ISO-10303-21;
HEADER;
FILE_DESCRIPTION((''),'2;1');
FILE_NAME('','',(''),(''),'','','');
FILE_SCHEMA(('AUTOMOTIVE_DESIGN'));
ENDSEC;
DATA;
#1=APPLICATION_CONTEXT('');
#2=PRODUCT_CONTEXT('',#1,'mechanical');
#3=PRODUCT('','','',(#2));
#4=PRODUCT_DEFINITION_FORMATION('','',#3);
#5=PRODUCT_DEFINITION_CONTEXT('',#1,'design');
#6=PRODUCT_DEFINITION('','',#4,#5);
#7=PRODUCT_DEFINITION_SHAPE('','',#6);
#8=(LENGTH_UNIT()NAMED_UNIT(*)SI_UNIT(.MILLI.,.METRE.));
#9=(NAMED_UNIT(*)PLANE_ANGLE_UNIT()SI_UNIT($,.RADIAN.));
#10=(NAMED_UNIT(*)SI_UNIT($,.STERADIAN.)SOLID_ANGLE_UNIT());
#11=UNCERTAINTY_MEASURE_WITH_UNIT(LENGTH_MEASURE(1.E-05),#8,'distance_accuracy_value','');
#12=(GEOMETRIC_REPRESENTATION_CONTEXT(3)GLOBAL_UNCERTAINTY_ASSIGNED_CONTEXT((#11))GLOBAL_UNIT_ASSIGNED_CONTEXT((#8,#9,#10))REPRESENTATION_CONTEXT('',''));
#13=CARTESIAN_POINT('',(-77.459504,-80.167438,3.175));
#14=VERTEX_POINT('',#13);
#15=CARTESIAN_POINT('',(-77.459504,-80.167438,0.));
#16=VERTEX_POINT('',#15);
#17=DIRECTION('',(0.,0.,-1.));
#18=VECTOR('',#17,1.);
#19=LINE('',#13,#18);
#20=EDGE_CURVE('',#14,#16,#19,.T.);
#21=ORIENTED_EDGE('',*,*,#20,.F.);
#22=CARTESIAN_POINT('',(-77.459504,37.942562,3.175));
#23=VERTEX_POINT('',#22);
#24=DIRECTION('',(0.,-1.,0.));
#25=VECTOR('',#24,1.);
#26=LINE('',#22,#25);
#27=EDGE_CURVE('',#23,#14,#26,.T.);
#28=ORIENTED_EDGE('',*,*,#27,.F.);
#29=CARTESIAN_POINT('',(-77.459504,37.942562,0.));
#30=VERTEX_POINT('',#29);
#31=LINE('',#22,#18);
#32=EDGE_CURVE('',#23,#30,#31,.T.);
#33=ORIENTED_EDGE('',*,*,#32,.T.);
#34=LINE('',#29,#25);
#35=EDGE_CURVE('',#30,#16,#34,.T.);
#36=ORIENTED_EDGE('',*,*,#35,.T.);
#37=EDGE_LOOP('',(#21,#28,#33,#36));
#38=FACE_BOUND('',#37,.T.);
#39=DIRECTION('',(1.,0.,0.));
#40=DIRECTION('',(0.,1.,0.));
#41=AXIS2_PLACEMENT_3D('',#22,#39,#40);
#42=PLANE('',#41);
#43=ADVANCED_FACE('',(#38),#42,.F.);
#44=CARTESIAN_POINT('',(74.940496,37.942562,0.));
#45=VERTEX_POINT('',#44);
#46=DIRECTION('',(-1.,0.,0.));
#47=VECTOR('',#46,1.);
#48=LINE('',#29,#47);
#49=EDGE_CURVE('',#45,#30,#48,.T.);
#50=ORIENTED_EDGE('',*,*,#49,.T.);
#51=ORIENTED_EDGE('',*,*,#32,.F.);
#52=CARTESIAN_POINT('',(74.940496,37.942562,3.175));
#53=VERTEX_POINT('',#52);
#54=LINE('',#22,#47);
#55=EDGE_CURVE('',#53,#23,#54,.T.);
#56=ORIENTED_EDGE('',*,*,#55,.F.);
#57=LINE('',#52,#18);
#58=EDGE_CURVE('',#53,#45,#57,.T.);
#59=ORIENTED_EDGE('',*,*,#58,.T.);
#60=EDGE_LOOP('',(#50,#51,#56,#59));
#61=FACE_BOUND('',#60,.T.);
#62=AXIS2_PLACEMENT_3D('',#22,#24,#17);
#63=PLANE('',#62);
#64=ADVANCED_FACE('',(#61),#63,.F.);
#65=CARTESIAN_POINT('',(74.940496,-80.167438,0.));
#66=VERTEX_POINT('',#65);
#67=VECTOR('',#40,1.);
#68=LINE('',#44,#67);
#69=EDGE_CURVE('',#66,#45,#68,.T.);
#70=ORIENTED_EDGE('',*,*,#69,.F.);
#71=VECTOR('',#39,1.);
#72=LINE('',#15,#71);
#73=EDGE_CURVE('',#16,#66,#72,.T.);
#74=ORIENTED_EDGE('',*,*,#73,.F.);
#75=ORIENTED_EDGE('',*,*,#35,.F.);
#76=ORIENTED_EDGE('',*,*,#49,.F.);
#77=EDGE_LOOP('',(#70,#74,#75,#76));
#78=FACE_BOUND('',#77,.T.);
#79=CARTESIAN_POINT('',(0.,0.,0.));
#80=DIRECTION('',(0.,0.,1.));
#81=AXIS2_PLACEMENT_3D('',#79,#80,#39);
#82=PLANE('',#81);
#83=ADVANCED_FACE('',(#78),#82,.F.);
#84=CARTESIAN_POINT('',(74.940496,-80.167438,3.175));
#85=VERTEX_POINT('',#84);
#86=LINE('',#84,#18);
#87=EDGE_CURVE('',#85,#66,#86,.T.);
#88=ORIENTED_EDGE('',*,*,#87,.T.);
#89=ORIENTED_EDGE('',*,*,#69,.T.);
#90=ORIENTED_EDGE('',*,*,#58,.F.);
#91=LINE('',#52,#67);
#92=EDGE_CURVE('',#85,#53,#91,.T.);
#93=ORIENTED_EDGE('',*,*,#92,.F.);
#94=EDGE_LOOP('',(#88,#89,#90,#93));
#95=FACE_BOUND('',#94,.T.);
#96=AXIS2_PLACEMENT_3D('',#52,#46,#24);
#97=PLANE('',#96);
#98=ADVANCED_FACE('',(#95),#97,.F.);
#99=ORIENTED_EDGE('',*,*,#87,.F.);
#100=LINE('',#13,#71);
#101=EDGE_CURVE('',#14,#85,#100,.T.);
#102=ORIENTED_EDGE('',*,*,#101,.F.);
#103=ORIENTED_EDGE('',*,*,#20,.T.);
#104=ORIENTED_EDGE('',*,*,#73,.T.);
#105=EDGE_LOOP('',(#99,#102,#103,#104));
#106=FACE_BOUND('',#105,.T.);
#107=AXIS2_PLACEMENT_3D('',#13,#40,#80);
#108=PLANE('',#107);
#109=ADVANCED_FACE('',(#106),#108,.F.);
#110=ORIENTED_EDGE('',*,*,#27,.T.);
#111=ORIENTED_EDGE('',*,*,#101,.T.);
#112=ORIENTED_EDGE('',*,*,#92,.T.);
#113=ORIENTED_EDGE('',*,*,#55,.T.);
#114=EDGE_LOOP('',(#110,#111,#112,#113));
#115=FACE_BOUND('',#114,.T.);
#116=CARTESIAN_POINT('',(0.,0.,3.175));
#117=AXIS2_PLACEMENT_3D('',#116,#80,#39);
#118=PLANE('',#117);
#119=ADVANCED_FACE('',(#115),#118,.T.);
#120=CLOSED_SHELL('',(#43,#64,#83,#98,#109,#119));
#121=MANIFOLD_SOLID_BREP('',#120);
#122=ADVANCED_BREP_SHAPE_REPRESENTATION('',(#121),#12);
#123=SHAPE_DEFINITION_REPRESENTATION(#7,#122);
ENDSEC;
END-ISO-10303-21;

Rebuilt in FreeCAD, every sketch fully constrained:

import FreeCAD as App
import Part
import Sketcher
from FreeCAD import Vector
Q = App.Units.Quantity


def add_polygon(sketch, points):
    """Adds a closed chain of lines whose ends are joined by coincident constraints."""
    first, n = sketch.GeometryCount, len(points)
    for a, b in zip(points, points[1:] + points[:1]):
        sketch.addGeometry(Part.LineSegment(App.Vector(*a, 0), App.Vector(*b, 0)), False)
    for i in range(n):
        sketch.addConstraint(Sketcher.Constraint("Coincident", first + i, 2, first + (i + 1) % n, 1))

doc = App.newDocument("Part")
body = doc.addObject("PartDesign::Body", "Body")

sketch1 = doc.addObject("Sketcher::SketchObject", "Sketch")
body.addObject(sketch1)
sketch1.AttachmentSupport = (doc.XY_Plane, [""])
sketch1.MapMode = "FlatFace"
add_polygon(sketch1, [(-77, 38), (-77, -80), (75, -80), (75, 38)])
sketch1.addConstraint([
    Sketcher.Constraint("Vertical", 0),
    Sketcher.Constraint("Horizontal", 1),
    Sketcher.Constraint("Vertical", 2),
    Sketcher.Constraint("Horizontal", 3),
    Sketcher.Constraint("DistanceX", 1, 1, 1, 2, Q("6 in")),
    Sketcher.Constraint("DistanceY", 0, 2, 0, 1, Q("4.65 in")),
    Sketcher.Constraint("DistanceY", 0, 2, -1, 1, 80.167438),
    Sketcher.Constraint("DistanceX", 0, 2, -1, 1, 77.459504),
])
pad1 = doc.addObject("PartDesign::Pad", "Pad")
body.addObject(pad1)
pad1.Profile = sketch1
pad1.Length = Q("0.125 in")

doc.recompute()
